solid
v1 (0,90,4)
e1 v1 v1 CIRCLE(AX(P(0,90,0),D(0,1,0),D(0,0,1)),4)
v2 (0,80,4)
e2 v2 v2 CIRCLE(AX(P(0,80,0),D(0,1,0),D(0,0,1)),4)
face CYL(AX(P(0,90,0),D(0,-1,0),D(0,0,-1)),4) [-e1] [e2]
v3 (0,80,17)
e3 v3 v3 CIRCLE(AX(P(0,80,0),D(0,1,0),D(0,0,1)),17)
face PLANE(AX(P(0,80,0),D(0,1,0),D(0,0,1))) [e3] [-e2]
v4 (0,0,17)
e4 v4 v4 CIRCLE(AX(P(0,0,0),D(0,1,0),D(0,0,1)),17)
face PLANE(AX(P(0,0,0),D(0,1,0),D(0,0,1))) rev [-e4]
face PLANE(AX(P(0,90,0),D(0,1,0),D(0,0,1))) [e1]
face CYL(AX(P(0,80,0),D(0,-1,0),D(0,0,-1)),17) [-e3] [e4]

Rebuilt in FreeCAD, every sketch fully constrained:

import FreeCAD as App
import Part
import Sketcher
from FreeCAD import Vector
Q = App.Units.Quantity

doc = App.newDocument("Part")
body = doc.addObject("PartDesign::Body", "Body")

# Sketch on XZ plane
sketch1 = body.newObject("Sketcher::SketchObject", "Sketch")
sketch1.AttachmentSupport = (doc.getObject("XZ_Plane"), [""])
sketch1.MapMode = "FlatFace"
sketch1.addGeometry(Part.Circle(Vector(0, 0, 0), Vector(0, 0, 1), 17), False)
sketch1.addConstraint([
    Sketcher.Constraint("Coincident", 0, 3, -1, 1),
    Sketcher.Constraint("Diameter", 0, Q("34 mm")),
])
pad1 = body.newObject("PartDesign::Pad", "Pad")
pad1.Profile = sketch1
pad1.Length = 80
pad1.Reversed = True

# Sketch on XZ plane
sketch2 = body.newObject("Sketcher::SketchObject", "Sketch001")
sketch2.AttachmentSupport = (doc.getObject("XZ_Plane"), [""])
sketch2.MapMode = "FlatFace"
sketch2.AttachmentOffset = App.Placement(Vector(0, 0, -80), App.Rotation())
sketch2.addGeometry(Part.Circle(Vector(0, 0, 0), Vector(0, 0, 1), 4), False)
sketch2.addConstraint([
    Sketcher.Constraint("Coincident", 0, 3, -1, 1),
    Sketcher.Constraint("Diameter", 0, Q("8 mm")),
])
pad2 = body.newObject("PartDesign::Pad", "Pad001")
pad2.Profile = sketch2
pad2.Length = 10
pad2.Reversed = True

doc.recompute()
